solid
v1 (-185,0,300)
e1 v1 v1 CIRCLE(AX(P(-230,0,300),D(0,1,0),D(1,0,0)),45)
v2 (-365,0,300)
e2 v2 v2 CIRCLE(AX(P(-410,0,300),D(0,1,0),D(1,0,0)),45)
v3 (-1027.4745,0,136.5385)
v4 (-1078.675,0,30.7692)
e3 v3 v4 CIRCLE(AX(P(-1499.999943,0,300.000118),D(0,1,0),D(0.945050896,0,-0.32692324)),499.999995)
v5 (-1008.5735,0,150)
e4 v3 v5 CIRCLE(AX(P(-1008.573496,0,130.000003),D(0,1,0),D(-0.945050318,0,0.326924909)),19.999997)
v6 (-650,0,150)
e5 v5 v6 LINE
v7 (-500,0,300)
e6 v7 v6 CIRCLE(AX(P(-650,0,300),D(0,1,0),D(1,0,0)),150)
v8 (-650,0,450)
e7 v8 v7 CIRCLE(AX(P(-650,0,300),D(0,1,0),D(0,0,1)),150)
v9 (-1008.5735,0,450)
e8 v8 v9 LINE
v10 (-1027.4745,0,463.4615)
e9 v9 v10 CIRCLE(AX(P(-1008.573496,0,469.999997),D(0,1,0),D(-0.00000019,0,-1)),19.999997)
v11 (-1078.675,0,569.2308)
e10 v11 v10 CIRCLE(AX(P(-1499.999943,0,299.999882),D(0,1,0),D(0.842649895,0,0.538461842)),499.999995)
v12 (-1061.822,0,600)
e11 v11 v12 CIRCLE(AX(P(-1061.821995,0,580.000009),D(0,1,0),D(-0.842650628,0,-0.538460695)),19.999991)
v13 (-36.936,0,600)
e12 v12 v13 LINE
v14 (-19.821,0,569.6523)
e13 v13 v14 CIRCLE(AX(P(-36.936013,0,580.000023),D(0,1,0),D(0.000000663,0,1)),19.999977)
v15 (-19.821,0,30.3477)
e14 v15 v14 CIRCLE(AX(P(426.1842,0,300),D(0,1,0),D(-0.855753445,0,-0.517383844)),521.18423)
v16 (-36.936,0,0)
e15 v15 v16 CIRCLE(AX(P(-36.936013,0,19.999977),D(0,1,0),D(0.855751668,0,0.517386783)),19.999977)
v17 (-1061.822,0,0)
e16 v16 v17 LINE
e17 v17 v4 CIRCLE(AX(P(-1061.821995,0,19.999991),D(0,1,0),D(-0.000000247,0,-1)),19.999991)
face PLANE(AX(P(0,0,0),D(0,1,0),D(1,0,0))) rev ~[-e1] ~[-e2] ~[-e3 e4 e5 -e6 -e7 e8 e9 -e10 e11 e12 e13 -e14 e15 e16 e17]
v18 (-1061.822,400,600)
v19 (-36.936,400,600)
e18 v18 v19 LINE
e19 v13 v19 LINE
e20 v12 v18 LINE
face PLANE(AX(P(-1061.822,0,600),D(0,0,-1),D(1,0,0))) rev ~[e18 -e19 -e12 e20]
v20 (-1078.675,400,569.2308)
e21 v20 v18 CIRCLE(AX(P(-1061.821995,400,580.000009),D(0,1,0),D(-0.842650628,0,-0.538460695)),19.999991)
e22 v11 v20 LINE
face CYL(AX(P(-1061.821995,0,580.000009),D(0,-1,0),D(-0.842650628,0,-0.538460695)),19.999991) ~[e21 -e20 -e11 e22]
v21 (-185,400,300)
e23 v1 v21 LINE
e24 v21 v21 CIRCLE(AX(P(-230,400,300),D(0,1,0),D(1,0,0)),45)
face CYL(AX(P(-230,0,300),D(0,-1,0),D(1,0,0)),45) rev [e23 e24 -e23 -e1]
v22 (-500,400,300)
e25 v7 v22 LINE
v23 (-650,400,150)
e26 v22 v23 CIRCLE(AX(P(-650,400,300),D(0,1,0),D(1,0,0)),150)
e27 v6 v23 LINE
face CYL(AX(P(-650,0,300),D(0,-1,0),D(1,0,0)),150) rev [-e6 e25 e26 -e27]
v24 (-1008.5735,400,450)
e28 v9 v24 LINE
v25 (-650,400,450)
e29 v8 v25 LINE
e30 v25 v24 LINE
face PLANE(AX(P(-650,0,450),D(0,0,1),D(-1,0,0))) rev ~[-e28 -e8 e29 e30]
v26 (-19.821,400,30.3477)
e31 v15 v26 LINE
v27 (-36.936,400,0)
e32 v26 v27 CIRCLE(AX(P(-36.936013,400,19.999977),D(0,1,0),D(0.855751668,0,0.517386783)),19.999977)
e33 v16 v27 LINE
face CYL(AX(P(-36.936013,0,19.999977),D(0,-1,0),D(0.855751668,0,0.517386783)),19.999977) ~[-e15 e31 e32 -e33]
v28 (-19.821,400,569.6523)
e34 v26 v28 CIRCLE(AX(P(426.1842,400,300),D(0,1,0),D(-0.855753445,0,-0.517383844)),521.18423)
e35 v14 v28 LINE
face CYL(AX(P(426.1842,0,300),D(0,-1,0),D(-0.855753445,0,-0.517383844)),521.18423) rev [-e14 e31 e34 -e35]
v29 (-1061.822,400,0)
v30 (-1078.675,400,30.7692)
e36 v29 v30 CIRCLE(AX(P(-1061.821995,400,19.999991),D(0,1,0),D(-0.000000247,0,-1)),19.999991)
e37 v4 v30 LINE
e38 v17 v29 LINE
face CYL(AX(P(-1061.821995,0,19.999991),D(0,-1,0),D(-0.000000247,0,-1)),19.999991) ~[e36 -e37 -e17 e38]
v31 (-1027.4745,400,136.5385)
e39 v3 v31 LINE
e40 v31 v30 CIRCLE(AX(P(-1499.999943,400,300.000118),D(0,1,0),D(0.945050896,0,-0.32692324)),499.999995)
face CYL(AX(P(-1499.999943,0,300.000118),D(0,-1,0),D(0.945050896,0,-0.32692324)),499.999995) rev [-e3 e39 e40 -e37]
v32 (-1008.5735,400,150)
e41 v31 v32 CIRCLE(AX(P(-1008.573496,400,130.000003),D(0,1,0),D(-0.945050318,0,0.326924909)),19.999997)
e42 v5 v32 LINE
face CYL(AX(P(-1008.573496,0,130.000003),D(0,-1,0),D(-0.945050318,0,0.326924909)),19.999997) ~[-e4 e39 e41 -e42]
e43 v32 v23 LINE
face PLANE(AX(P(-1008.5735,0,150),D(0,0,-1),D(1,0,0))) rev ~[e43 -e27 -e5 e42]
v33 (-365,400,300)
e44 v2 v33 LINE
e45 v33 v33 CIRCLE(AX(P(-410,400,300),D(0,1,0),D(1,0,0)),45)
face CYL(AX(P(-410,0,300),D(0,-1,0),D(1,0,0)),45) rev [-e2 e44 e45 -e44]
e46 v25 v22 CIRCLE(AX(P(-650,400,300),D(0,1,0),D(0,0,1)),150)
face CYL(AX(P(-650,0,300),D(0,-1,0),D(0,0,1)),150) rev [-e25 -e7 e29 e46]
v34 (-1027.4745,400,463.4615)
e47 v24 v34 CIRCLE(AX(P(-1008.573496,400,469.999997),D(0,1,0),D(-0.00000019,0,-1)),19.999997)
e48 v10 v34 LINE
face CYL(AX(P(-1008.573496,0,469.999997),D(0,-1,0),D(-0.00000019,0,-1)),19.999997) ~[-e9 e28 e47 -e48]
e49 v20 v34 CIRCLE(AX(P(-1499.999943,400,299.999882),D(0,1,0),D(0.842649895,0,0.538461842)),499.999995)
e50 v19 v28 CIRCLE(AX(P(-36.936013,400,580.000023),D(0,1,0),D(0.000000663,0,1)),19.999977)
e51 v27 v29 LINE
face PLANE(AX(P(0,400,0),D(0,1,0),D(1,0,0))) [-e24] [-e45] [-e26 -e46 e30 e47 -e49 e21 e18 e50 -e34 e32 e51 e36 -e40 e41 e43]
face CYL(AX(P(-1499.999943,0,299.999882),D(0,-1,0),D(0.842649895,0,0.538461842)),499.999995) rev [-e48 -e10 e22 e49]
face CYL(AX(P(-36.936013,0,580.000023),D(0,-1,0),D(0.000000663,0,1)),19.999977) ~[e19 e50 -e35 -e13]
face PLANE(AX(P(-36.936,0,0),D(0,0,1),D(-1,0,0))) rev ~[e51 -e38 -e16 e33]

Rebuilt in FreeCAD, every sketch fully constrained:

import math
import FreeCAD as App
import Part
import Sketcher
from FreeCAD import Vector

doc = App.newDocument("Part")
body = doc.addObject("PartDesign::Body", "Body")

# Sketch on XZ plane
sketch1 = body.newObject("Sketcher::SketchObject", "Sketch")
sketch1.AttachmentSupport = (doc.getObject("XZ_Plane"), [""])
sketch1.MapMode = "FlatFace"
sketch1.addGeometry(Part.ArcOfCircle(Part.Circle(Vector(-37, 20, 0), Vector(0, 0, 1), 20), math.radians(-90), math.radians(31)), False)
sketch1.addGeometry(Part.LineSegment(Vector(-37, 0, 0), Vector(-1062, 0, 0)), False)
sketch1.addGeometry(Part.ArcOfCircle(Part.Circle(Vector(-1062, 20, 0), Vector(0, 0, 1), 20), math.radians(147), math.radians(270)), False)
sketch1.addGeometry(Part.ArcOfCircle(Part.Circle(Vector(-1500, 300, 0), Vector(0, 0, 1), 500), math.radians(-32.58), math.radians(-19.08)), False)
sketch1.addGeometry(Part.ArcOfCircle(Part.Circle(Vector(-1009, 130, 0), Vector(0, 0, 1), 20), math.radians(90), math.radians(161)), False)
sketch1.addGeometry(Part.LineSegment(Vector(-1009, 150, 0), Vector(-650, 150, 0)), False)
sketch1.addGeometry(Part.ArcOfCircle(Part.Circle(Vector(-650, 300, 0), Vector(0, 0, 1), 150), math.radians(-90), math.radians(90)), False)
sketch1.addGeometry(Part.LineSegment(Vector(-650, 450, 0), Vector(-1009, 450, 0)), False)
sketch1.addGeometry(Part.ArcOfCircle(Part.Circle(Vector(-1009, 470, 0), Vector(0, 0, 1), 20), math.radians(-161), math.radians(-90)), False)
sketch1.addGeometry(Part.ArcOfCircle(Part.Circle(Vector(-1500, 300, 0), Vector(0, 0, 1), 500), math.radians(19.08), math.radians(32.58)), False)
sketch1.addGeometry(Part.ArcOfCircle(Part.Circle(Vector(-1062, 580, 0), Vector(0, 0, 1), 20), math.radians(90), math.radians(213)), False)
sketch1.addGeometry(Part.LineSegment(Vector(-1062, 600, 0), Vector(-37, 600, 0)), False)
sketch1.addGeometry(Part.ArcOfCircle(Part.Circle(Vector(-37, 580, 0), Vector(0, 0, 1), 20), math.radians(-31), math.radians(90)), False)
sketch1.addGeometry(Part.ArcOfCircle(Part.Circle(Vector(426, 300, 0), Vector(0, 0, 1), 521), math.radians(149), math.radians(211)), False)
sketch1.addGeometry(Part.Circle(Vector(-410, 300, 0), Vector(0, 0, 1), 45), False)
sketch1.addGeometry(Part.Circle(Vector(-230, 300, 0), Vector(0, 0, 1), 45), False)
sketch1.addConstraint(Sketcher.Constraint("Tangent", 0, 1, 1, 1))
sketch1.addConstraint(Sketcher.Constraint("Tangent", 1, 2, 2, 2))
sketch1.addConstraint(Sketcher.Constraint("Tangent", 2, 1, 3, 1))
sketch1.addConstraint(Sketcher.Constraint("Tangent", 3, 2, 4, 2))
sketch1.addConstraint(Sketcher.Constraint("Tangent", 4, 1, 5, 1))
sketch1.addConstraint(Sketcher.Constraint("Tangent", 5, 2, 6, 1))
sketch1.addConstraint(Sketcher.Constraint("Tangent", 6, 2, 7, 1))
sketch1.addConstraint(Sketcher.Constraint("Tangent", 7, 2, 8, 2))
sketch1.addConstraint(Sketcher.Constraint("Tangent", 8, 1, 9, 1))
sketch1.addConstraint(Sketcher.Constraint("Tangent", 9, 2, 10, 2))
sketch1.addConstraint(Sketcher.Constraint("Tangent", 10, 1, 11, 1))
sketch1.addConstraint(Sketcher.Constraint("Tangent", 11, 2, 12, 2))
sketch1.addConstraint(Sketcher.Constraint("Tangent", 12, 1, 13, 1))
sketch1.addConstraint(Sketcher.Constraint("Tangent", 13, 2, 0, 2))
sketch1.addConstraint(Sketcher.Constraint("Horizontal", 1))
sketch1.addConstraint(Sketcher.Constraint("Horizontal", 5))
sketch1.addConstraint(Sketcher.Constraint("Horizontal", 7))
sketch1.addConstraint(Sketcher.Constraint("Horizontal", 11))
sketch1.addConstraint(Sketcher.Constraint("Equal", 0, 2))
sketch1.addConstraint(Sketcher.Constraint("Equal", 2, 4))
sketch1.addConstraint(Sketcher.Constraint("Equal", 4, 8))
sketch1.addConstraint(Sketcher.Constraint("Equal", 8, 10))
sketch1.addConstraint(Sketcher.Constraint("Equal", 10, 12))
sketch1.addConstraint(Sketcher.Constraint("Equal", 14, 15))
sketch1.addConstraint(Sketcher.Constraint("PointOnObject", 0, 1, -1))
sketch1.addConstraint(Sketcher.Constraint("Horizontal", 6, 3, 13, 3))
sketch1.addConstraint(Sketcher.Constraint("Horizontal", 13, 3, 14, 3))
sketch1.addConstraint(Sketcher.Constraint("Horizontal", 14, 3, 15, 3))
sketch1.addConstraint(Sketcher.Constraint("Vertical", 4, 3, 8, 3))
sketch1.addConstraint(Sketcher.Constraint("Vertical", 2, 3, 10, 3))
sketch1.addConstraint(Sketcher.Constraint("Vertical", 0, 3, 12, 3))
sketch1.addConstraint(Sketcher.Constraint("Diameter", 14, 90.0))
sketch1.addConstraint(Sketcher.Constraint("Radius", 0, 20.0))
sketch1.addConstraint(Sketcher.Constraint("Radius", 6, 150.0))
sketch1.addConstraint(Sketcher.Constraint("DistanceY", -1, 1, 6, 3, 300.0))
sketch1.addConstraint(Sketcher.Constraint("DistanceX", 14, 3, 15, 3, 180.0))
sketch1.addConstraint(Sketcher.Constraint("DistanceX", 6, 3, -1, 1, 650.0))
sketch1.addConstraint(Sketcher.Constraint("DistanceX", 14, 3, -1, 1, 410.0))
sketch1.addConstraint(Sketcher.Constraint("Radius", 3, 499.9978))
sketch1.addConstraint(Sketcher.Constraint("Radius", 9, 500.0022))
sketch1.addConstraint(Sketcher.Constraint("Radius", 13, 521.1842))
sketch1.addConstraint(Sketcher.Constraint("DistanceX", 1, 2, 1, 1, 1024.886))
sketch1.addConstraint(Sketcher.Constraint("DistanceX", 9, 3, 2, 3, 438.18))
sketch1.addConstraint(Sketcher.Constraint("DistanceX", 5, 1, 5, 2, 358.5735))
pad1 = body.newObject("PartDesign::Pad", "Pad")
pad1.Profile = sketch1
pad1.Length = 400
pad1.Reversed = True

doc.recompute()
